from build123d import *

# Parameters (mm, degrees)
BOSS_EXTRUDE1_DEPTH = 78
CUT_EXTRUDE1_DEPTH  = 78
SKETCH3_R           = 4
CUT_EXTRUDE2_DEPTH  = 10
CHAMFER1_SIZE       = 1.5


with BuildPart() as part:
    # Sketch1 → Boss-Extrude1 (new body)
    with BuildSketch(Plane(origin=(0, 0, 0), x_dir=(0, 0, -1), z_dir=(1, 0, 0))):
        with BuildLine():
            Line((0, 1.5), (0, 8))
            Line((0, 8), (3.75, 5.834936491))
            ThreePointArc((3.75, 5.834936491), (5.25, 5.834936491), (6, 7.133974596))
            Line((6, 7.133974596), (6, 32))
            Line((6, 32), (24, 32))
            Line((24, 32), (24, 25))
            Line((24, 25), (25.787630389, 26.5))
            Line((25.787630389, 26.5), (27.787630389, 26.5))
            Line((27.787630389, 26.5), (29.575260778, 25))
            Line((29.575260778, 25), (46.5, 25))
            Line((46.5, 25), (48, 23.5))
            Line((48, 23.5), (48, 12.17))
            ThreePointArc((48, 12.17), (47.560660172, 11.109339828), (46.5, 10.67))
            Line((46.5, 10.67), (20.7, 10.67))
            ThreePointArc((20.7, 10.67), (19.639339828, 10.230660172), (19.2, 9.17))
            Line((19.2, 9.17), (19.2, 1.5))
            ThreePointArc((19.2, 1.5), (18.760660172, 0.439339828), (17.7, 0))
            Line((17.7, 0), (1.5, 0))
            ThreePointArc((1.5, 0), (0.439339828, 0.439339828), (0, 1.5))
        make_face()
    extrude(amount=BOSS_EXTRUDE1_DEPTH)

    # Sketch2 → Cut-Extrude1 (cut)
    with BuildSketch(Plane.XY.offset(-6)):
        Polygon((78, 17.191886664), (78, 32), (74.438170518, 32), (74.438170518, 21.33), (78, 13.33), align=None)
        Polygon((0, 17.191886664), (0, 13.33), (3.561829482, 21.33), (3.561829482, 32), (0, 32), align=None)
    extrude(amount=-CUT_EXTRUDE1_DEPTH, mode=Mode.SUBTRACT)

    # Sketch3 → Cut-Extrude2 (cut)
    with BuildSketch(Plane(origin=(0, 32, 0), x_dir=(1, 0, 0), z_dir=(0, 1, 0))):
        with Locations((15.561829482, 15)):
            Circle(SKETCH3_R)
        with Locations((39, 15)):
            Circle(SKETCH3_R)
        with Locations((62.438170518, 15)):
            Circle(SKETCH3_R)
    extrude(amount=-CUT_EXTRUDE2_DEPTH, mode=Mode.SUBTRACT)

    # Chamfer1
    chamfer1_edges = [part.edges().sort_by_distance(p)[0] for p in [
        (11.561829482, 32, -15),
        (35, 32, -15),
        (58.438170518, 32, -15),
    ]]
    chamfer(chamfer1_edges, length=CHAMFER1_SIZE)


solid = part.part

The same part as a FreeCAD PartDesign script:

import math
import FreeCAD as App
import Part
import Sketcher

V = App.Vector
Q = App.Units.Quantity


def edges_at(feature, points):
    """Names of the edges that pass closest to the given points."""
    edges = feature.Shape.Edges
    near = lambda p: min(range(len(edges)), key=lambda i: edges[i].distToShape(Part.Vertex(*p))[0])
    return sorted({f"Edge{near(p) + 1}" for p in points})


def add_polygon(sketch, points):
    """Adds a closed chain of lines whose ends are joined by coincident constraints."""
    first, n = sketch.GeometryCount, len(points)
    for a, b in zip(points, points[1:] + points[:1]):
        sketch.addGeometry(Part.LineSegment(App.Vector(*a, 0), App.Vector(*b, 0)), False)
    for i in range(n):
        sketch.addConstraint(Sketcher.Constraint("Coincident", first + i, 2, first + (i + 1) % n, 1))

doc = App.newDocument("Part")
body = doc.addObject("PartDesign::Body", "Body")

sketch1 = body.newObject("Sketcher::SketchObject", "Sketch")
sketch1.AttachmentSupport = (doc.getObject("YZ_Plane"), [""])
sketch1.MapMode = "FlatFace"
sketch1.addGeometry([
    Part.LineSegment(V(8, 0, 0), V(1.5, 0, 0)),
    Part.ArcOfCircle(Part.Circle(V(1.5, -1.5, 0), V(0, 0, 1), 1.5), math.radians(90), math.radians(180)),
    Part.LineSegment(V(0, -1.5, 0), V(0, -17.7, 0)),
    Part.ArcOfCircle(Part.Circle(V(1.5, -17.7, 0), V(0, 0, 1), 1.5), math.radians(180), math.radians(270)),
    Part.LineSegment(V(1.5, -19.2, 0), V(9.2, -19.2, 0)),
    Part.ArcOfCircle(Part.Circle(V(9.2, -20.7, 0), V(0, 0, 1), 1.5), math.radians(0), math.radians(90)),
    Part.LineSegment(V(10.7, -20.7, 0), V(10.7, -46.5, 0)),
    Part.ArcOfCircle(Part.Circle(V(12.2, -46.5, 0), V(0, 0, 1), 1.5), math.radians(180), math.radians(270)),
    Part.LineSegment(V(12.2, -48, 0), V(23.5, -48, 0)),
    Part.LineSegment(V(23.5, -48, 0), V(25, -46.5, 0)),
    Part.LineSegment(V(25, -46.5, 0), V(25, -29.6, 0)),
    Part.LineSegment(V(25, -29.6, 0), V(26.5, -27.8, 0)),
    Part.LineSegment(V(26.5, -27.8, 0), V(26.5, -25.8, 0)),
    Part.LineSegment(V(26.5, -25.8, 0), V(25, -24, 0)),
    Part.LineSegment(V(25, -24, 0), V(32, -24, 0)),
    Part.LineSegment(V(32, -24, 0), V(32, -6, 0)),
    Part.LineSegment(V(32, -6, 0), V(7.1, -6, 0)),
    Part.ArcOfCircle(Part.Circle(V(7.1, -4.5, 0), V(0, 0, 1), 1.5), math.radians(150), math.radians(270)),
    Part.LineSegment(V(5.8, -3.8, 0), V(8, 0, 0)),
], False)
sketch1.addConstraint([
    Sketcher.Constraint("Tangent", 0, 2, 1, 1),
    Sketcher.Constraint("Tangent", 1, 2, 2, 1),
    Sketcher.Constraint("Tangent", 2, 2, 3, 1),
    Sketcher.Constraint("Tangent", 3, 2, 4, 1),
    Sketcher.Constraint("Tangent", 4, 2, 5, 2),
    Sketcher.Constraint("Tangent", 5, 1, 6, 1),
    Sketcher.Constraint("Tangent", 6, 2, 7, 1),
    Sketcher.Constraint("Tangent", 7, 2, 8, 1),
    Sketcher.Constraint("Coincident", 8, 2, 9, 1),
    Sketcher.Constraint("Coincident", 9, 2, 10, 1),
    Sketcher.Constraint("Coincident", 10, 2, 11, 1),
    Sketcher.Constraint("Coincident", 11, 2, 12, 1),
    Sketcher.Constraint("Coincident", 12, 2, 13, 1),
    Sketcher.Constraint("Coincident", 13, 2, 14, 1),
    Sketcher.Constraint("Coincident", 14, 2, 15, 1),
    Sketcher.Constraint("Coincident", 15, 2, 16, 1),
    Sketcher.Constraint("Tangent", 16, 2, 17, 2),
    Sketcher.Constraint("Tangent", 17, 1, 18, 1),
    Sketcher.Constraint("Coincident", 18, 2, 0, 1),
    Sketcher.Constraint("Horizontal", 0),
    Sketcher.Constraint("Vertical", 2),
    Sketcher.Constraint("Horizontal", 4),
    Sketcher.Constraint("Vertical", 6),
    Sketcher.Constraint("Horizontal", 8),
    Sketcher.Constraint("Vertical", 10),
    Sketcher.Constraint("Vertical", 12),
    Sketcher.Constraint("Horizontal", 14),
    Sketcher.Constraint("Vertical", 15),
    Sketcher.Constraint("Horizontal", 16),
    Sketcher.Constraint("Equal", 1, 3),
    Sketcher.Constraint("Equal", 3, 5),
    Sketcher.Constraint("Equal", 5, 7),
    Sketcher.Constraint("Equal", 7, 17),
    Sketcher.Constraint("PointOnObject", 0, 2, -1),
    Sketcher.Constraint("PointOnObject", 1, 2, -2),
    Sketcher.Constraint("Horizontal", 6, 2, 9, 2),
    Sketcher.Constraint("Vertical", 10, 2, 13, 2),
    Sketcher.Constraint("Equal", 11, 13),
    Sketcher.Constraint("Radius", 1, Q("1.5 mm")),
    Sketcher.Constraint("DistanceX", 14, 1, 14, 2, Q("7 mm")),
    Sketcher.Constraint("DistanceY", 12, 1, 12, 2, Q("2 mm")),
    Sketcher.Constraint("DistanceY", 15, 1, 15, 2, Q("18 mm")),
    Sketcher.Constraint("Angle", 9, Q("45 deg")),
    Sketcher.Constraint("Angle", 11, Q("50 deg")),
    Sketcher.Constraint("Angle", 18, Q("60 deg")),
    Sketcher.Constraint("DistanceX", 0, 2, 0, 1, Q("6.5 mm")),
    Sketcher.Constraint("DistanceY", 2, 2, 2, 1, Q("16.2 mm")),
    Sketcher.Constraint("DistanceY", 6, 2, 6, 1, Q("25.8 mm")),
    Sketcher.Constraint("DistanceX", -1, 1, 9, 2, Q("25 mm")),
    Sketcher.Constraint("DistanceY", 13, 2, -1, 1, Q("24 mm")),
    Sketcher.Constraint("DistanceX", 4, 1, 4, 2, Q("7.67 mm")),
    Sketcher.Constraint("DistanceX", -1, 1, 11, 2, Q("26.5 mm")),
])
pad1 = body.newObject("PartDesign::Pad", "Pad")
pad1.Profile = sketch1
pad1.Length = 78

sketch2 = body.newObject("Sketcher::SketchObject", "Sketch001")
sketch2.AttachmentSupport = (doc.getObject("XY_Plane"), [""])
sketch2.MapMode = "FlatFace"
sketch2.AttachmentOffset = App.Placement(V(0, 0, -6), App.Rotation())
add_polygon(sketch2, [(78, 32), (74.4, 32), (74.4, 21.3), (78, 13.3)])
add_polygon(sketch2, [(0, 13.3), (3.6, 21.3), (3.6, 32), (0, 32)])
sketch2.addConstraint([
    Sketcher.Constraint("Horizontal", 0),
    Sketcher.Constraint("Vertical", 1),
    Sketcher.Constraint("Vertical", 3),
    Sketcher.Constraint("Vertical", 5),
    Sketcher.Constraint("Horizontal", 6),
    Sketcher.Constraint("Vertical", 7),
    Sketcher.Constraint("PointOnObject", 6, 2, -2),
    Sketcher.Constraint("Horizontal", 1, 2, 4, 2),
    Sketcher.Constraint("Horizontal", 3, 2, 5, 2),
    Sketcher.Constraint("Horizontal", 2, 2, 7, 2),
    Sketcher.Constraint("Equal", 0, 6),
    Sketcher.Constraint("Angle", 2, Q("-66 deg")),
    Sketcher.Constraint("DistanceY", -1, 1, 0, 2, Q("32 mm")),
    Sketcher.Constraint("DistanceX", -1, 1, 2, 2, Q("78 mm")),
    Sketcher.Constraint("DistanceY", 2, 2, 1, 2, Q("8 mm")),
    Sketcher.Constraint("DistanceY", 1, 2, 1, 1, Q("10.67 mm")),
])
pocket1 = body.newObject("PartDesign::Pocket", "Pocket")
pocket1.Profile = sketch2
pocket1.Length = 78

sketch3 = body.newObject("Sketcher::SketchObject", "Sketch002")
sketch3.AttachmentSupport = (doc.getObject("XZ_Plane"), [""])
sketch3.MapMode = "FlatFace"
sketch3.AttachmentOffset = App.Placement(V(0, 0, -32), App.Rotation())
sketch3.addGeometry([
    Part.Circle(V(15.6, -15, 0), V(0, 0, 1), 4),
    Part.Circle(V(39, -15, 0), V(0, 0, 1), 4),
    Part.Circle(V(62.4, -15, 0), V(0, 0, 1), 4),
], False)
sketch3.addConstraint([
    Sketcher.Constraint("Equal", 0, 1),
    Sketcher.Constraint("Equal", 1, 2),
    Sketcher.Constraint("Horizontal", 0, 3, 1, 3),
    Sketcher.Constraint("Horizontal", 1, 3, 2, 3),
    Sketcher.Constraint("Diameter", 0, Q("8 mm")),
    Sketcher.Constraint("DistanceY", 0, 3, -1, 1, Q("15 mm")),
    Sketcher.Constraint("DistanceX", -1, 1, 1, 3, Q("39 mm")),
    Sketcher.Constraint("DistanceX", -1, 1, 0, 3, Q("15.561829 mm")),
    Sketcher.Constraint("DistanceX", -1, 1, 2, 3, Q("62.438171 mm")),
])
pocket2 = body.newObject("PartDesign::Pocket", "Pocket001")
pocket2.Profile = sketch3
pocket2.Length = 10
pocket2.Reversed = True
doc.recompute()

chamfer = body.newObject("PartDesign::Chamfer", "Chamfer")
chamfer.Base = (pocket2, edges_at(pocket2, [(11.562, 32, -15), (35, 32, -15), (58.438, 32, -15)]))
chamfer.Size = 1.5

doc.recompute()
